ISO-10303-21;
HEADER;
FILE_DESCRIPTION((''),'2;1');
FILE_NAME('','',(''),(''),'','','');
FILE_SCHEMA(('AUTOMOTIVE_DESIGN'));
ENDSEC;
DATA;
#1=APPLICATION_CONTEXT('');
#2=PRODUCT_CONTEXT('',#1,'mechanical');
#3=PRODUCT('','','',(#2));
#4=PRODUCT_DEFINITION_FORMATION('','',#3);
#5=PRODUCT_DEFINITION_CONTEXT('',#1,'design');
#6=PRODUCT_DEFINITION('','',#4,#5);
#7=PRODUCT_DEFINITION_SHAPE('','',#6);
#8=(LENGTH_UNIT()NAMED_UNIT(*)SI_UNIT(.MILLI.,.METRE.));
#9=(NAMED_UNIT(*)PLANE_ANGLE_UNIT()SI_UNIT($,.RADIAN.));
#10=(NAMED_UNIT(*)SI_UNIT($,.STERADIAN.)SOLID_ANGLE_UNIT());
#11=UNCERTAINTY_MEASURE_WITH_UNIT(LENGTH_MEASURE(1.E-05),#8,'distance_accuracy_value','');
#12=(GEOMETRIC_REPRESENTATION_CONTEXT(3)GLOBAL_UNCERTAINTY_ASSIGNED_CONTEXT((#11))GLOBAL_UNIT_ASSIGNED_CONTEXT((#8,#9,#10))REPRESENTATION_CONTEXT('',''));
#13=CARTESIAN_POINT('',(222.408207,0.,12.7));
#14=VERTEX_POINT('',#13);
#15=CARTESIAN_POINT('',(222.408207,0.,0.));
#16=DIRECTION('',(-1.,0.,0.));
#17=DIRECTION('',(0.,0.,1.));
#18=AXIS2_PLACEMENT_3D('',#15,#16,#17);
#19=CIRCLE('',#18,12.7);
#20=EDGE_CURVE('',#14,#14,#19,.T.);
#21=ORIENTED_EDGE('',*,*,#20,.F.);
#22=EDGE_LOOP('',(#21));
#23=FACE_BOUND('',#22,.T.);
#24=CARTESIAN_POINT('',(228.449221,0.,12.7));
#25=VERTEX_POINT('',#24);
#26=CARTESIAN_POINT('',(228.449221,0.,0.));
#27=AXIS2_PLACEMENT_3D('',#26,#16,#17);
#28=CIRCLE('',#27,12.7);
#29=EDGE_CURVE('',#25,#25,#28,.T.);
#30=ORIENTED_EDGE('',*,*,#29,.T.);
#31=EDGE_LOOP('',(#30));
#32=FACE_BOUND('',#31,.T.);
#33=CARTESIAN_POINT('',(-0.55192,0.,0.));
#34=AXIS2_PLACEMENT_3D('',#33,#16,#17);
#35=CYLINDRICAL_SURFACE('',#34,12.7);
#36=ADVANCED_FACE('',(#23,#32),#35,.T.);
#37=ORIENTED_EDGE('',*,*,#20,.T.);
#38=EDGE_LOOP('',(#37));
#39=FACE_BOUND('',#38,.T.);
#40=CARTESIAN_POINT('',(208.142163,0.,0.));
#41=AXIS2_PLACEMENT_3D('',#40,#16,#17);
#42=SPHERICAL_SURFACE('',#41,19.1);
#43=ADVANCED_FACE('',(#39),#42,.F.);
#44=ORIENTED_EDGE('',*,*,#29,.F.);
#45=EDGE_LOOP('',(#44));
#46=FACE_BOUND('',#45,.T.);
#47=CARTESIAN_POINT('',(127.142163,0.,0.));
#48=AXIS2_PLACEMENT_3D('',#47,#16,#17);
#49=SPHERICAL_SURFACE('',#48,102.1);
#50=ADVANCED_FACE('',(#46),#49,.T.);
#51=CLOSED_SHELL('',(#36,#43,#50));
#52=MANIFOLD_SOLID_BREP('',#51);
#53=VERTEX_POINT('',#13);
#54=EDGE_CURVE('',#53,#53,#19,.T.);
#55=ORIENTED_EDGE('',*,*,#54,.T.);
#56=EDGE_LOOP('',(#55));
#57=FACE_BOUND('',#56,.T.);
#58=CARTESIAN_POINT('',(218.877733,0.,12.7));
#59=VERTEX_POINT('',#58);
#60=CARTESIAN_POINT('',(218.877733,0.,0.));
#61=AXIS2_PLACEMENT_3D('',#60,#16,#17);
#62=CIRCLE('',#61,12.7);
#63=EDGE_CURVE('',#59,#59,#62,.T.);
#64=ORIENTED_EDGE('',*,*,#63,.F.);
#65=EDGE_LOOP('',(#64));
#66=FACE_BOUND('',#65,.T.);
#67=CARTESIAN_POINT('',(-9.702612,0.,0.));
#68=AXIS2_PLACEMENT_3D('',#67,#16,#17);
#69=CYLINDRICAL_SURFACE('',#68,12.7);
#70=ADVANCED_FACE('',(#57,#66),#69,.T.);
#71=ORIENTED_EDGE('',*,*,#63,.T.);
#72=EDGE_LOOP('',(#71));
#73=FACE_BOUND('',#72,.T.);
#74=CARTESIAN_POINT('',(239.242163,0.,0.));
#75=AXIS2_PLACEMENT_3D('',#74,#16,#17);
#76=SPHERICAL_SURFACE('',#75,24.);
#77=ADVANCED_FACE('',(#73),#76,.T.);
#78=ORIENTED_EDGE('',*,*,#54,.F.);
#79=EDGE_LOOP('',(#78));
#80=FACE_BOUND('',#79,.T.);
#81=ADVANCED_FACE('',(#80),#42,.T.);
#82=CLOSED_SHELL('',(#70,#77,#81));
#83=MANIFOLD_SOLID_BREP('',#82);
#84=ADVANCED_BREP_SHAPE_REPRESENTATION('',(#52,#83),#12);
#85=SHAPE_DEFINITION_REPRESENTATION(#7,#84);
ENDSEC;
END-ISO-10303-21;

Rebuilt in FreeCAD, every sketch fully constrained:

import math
import FreeCAD as App
import Part
import Sketcher
Q = App.Units.Quantity

doc = App.newDocument("Part")
params = doc.addObject("Spreadsheet::Sheet", "Params")
for row, (alias, value) in enumerate([
    ("sketch1_radius", "24 mm"),
    ("sketch1_radius2", "19.1 mm"),
    ("sketch1_width", "12 mm"),
    ("revolution_angle", "360 deg"),
    ("sketch2_radius", "19.1 mm"),
    ("sketch2_radius2", "102.1 mm"),
    ("sketch2_width", "2 mm"),
    ("revolution2_angle", "360 deg"),
], start=1):
    params.set(f"A{row}", alias)
    params.set(f"B{row}", "=" + value)
    params.setAlias(f"B{row}", alias)

body = doc.addObject("PartDesign::Body", "Body")

# Sketch on XZ plane
sketch1 = doc.addObject("Sketcher::SketchObject", "Sketch")
body.addObject(sketch1)
sketch1.AttachmentSupport = (doc.XZ_Plane, [""])
sketch1.MapMode = "FlatFace"
sketch1.addGeometry([
    Part.ArcOfCircle(Part.Circle(App.Vector(239.2, 0, 0), App.Vector(0, 0, 1), 24), math.radians(180), math.radians(212)),
    Part.LineSegment(App.Vector(215.2, 0, 0), App.Vector(227.2, 0, 0)),
    Part.ArcOfCircle(Part.Circle(App.Vector(208.1, 0, 0), App.Vector(0, 0, 1), 19.1), math.radians(-42), math.radians(0)),
    Part.LineSegment(App.Vector(222.4, -12.7, 0), App.Vector(218.9, -12.7, 0)),
], False)
sketch1.addConstraint([
    Sketcher.Constraint("Coincident", 0, 1, 1, 1),
    Sketcher.Constraint("Coincident", 1, 2, 2, 2),
    Sketcher.Constraint("Coincident", 2, 1, 3, 1),
    Sketcher.Constraint("Coincident", 3, 2, 0, 2),
    Sketcher.Constraint("Horizontal", 1),
    Sketcher.Constraint("Horizontal", 3),
    Sketcher.Constraint("PointOnObject", 0, 3, -1),
    Sketcher.Constraint("PointOnObject", 2, 3, -1),
    Sketcher.Constraint("PointOnObject", 0, 1, -1),
    Sketcher.Constraint("Radius", 0, Q("24 mm")),
    Sketcher.Constraint("Radius", 2, Q("19.1 mm")),
    Sketcher.Constraint("DistanceX", 1, 1, 1, 2, Q("12 mm")),
    Sketcher.Constraint("DistanceY", 2, 1, -1, 1, Q("12.7 mm")),
    Sketcher.Constraint("DistanceX", -1, 1, 0, 3, Q("239.242163 mm")),
])
sketch1.setExpression("Constraints[9]", "Params.sketch1_radius")
sketch1.setExpression("Constraints[10]", "Params.sketch1_radius2")
sketch1.setExpression("Constraints[11]", "Params.sketch1_width")
revolution = doc.addObject("PartDesign::Revolution", "Revolution")
body.addObject(revolution)
revolution.Profile = sketch1
revolution.ReferenceAxis = (sketch1, ["H_Axis"])
revolution.setExpression("Angle", "Params.revolution_angle")
body2 = doc.addObject("PartDesign::Body", "Body001")

# Sketch on XZ plane
sketch2 = doc.addObject("Sketcher::SketchObject", "Sketch001")
body2.addObject(sketch2)
sketch2.AttachmentSupport = (doc.getObject("XZ_Plane001"), [""])
sketch2.MapMode = "FlatFace"
sketch2.addGeometry([
    Part.LineSegment(App.Vector(228.4, -12.7, 0), App.Vector(222.4, -12.7, 0)),
    Part.ArcOfCircle(Part.Circle(App.Vector(208.1, 0, 0), App.Vector(0, 0, 1), 19.1), math.radians(-42), math.radians(0)),
    Part.LineSegment(App.Vector(227.2, 0, 0), App.Vector(229.2, 0, 0)),
    Part.ArcOfCircle(Part.Circle(App.Vector(127.1, 0, 0), App.Vector(0, 0, 1), 102.1), math.radians(-7.15), math.radians(0)),
], False)
sketch2.addConstraint([
    Sketcher.Constraint("Coincident", 0, 2, 1, 1),
    Sketcher.Constraint("Coincident", 1, 2, 2, 1),
    Sketcher.Constraint("Coincident", 2, 2, 3, 2),
    Sketcher.Constraint("Coincident", 3, 1, 0, 1),
    Sketcher.Constraint("Horizontal", 0),
    Sketcher.Constraint("Horizontal", 2),
    Sketcher.Constraint("PointOnObject", 1, 3, -1),
    Sketcher.Constraint("PointOnObject", 3, 3, -1),
    Sketcher.Constraint("PointOnObject", 1, 2, -1),
    Sketcher.Constraint("Radius", 1, Q("19.1 mm")),
    Sketcher.Constraint("Radius", 3, Q("102.1 mm")),
    Sketcher.Constraint("DistanceX", 2, 1, 2, 2, Q("2 mm")),
    Sketcher.Constraint("DistanceY", 0, 2, -1, 1, Q("12.7 mm")),
    Sketcher.Constraint("DistanceX", -1, 1, 3, 1, Q("228.449221 mm")),
])
sketch2.setExpression("Constraints[9]", "Params.sketch2_radius")
sketch2.setExpression("Constraints[10]", "Params.sketch2_radius2")
sketch2.setExpression("Constraints[11]", "Params.sketch2_width")
revolution2 = doc.addObject("PartDesign::Revolution", "Revolution001")
body2.addObject(revolution2)
revolution2.Profile = sketch2
revolution2.ReferenceAxis = (sketch2, ["H_Axis"])
revolution2.setExpression("Angle", "Params.revolution2_angle")

doc.recompute()
